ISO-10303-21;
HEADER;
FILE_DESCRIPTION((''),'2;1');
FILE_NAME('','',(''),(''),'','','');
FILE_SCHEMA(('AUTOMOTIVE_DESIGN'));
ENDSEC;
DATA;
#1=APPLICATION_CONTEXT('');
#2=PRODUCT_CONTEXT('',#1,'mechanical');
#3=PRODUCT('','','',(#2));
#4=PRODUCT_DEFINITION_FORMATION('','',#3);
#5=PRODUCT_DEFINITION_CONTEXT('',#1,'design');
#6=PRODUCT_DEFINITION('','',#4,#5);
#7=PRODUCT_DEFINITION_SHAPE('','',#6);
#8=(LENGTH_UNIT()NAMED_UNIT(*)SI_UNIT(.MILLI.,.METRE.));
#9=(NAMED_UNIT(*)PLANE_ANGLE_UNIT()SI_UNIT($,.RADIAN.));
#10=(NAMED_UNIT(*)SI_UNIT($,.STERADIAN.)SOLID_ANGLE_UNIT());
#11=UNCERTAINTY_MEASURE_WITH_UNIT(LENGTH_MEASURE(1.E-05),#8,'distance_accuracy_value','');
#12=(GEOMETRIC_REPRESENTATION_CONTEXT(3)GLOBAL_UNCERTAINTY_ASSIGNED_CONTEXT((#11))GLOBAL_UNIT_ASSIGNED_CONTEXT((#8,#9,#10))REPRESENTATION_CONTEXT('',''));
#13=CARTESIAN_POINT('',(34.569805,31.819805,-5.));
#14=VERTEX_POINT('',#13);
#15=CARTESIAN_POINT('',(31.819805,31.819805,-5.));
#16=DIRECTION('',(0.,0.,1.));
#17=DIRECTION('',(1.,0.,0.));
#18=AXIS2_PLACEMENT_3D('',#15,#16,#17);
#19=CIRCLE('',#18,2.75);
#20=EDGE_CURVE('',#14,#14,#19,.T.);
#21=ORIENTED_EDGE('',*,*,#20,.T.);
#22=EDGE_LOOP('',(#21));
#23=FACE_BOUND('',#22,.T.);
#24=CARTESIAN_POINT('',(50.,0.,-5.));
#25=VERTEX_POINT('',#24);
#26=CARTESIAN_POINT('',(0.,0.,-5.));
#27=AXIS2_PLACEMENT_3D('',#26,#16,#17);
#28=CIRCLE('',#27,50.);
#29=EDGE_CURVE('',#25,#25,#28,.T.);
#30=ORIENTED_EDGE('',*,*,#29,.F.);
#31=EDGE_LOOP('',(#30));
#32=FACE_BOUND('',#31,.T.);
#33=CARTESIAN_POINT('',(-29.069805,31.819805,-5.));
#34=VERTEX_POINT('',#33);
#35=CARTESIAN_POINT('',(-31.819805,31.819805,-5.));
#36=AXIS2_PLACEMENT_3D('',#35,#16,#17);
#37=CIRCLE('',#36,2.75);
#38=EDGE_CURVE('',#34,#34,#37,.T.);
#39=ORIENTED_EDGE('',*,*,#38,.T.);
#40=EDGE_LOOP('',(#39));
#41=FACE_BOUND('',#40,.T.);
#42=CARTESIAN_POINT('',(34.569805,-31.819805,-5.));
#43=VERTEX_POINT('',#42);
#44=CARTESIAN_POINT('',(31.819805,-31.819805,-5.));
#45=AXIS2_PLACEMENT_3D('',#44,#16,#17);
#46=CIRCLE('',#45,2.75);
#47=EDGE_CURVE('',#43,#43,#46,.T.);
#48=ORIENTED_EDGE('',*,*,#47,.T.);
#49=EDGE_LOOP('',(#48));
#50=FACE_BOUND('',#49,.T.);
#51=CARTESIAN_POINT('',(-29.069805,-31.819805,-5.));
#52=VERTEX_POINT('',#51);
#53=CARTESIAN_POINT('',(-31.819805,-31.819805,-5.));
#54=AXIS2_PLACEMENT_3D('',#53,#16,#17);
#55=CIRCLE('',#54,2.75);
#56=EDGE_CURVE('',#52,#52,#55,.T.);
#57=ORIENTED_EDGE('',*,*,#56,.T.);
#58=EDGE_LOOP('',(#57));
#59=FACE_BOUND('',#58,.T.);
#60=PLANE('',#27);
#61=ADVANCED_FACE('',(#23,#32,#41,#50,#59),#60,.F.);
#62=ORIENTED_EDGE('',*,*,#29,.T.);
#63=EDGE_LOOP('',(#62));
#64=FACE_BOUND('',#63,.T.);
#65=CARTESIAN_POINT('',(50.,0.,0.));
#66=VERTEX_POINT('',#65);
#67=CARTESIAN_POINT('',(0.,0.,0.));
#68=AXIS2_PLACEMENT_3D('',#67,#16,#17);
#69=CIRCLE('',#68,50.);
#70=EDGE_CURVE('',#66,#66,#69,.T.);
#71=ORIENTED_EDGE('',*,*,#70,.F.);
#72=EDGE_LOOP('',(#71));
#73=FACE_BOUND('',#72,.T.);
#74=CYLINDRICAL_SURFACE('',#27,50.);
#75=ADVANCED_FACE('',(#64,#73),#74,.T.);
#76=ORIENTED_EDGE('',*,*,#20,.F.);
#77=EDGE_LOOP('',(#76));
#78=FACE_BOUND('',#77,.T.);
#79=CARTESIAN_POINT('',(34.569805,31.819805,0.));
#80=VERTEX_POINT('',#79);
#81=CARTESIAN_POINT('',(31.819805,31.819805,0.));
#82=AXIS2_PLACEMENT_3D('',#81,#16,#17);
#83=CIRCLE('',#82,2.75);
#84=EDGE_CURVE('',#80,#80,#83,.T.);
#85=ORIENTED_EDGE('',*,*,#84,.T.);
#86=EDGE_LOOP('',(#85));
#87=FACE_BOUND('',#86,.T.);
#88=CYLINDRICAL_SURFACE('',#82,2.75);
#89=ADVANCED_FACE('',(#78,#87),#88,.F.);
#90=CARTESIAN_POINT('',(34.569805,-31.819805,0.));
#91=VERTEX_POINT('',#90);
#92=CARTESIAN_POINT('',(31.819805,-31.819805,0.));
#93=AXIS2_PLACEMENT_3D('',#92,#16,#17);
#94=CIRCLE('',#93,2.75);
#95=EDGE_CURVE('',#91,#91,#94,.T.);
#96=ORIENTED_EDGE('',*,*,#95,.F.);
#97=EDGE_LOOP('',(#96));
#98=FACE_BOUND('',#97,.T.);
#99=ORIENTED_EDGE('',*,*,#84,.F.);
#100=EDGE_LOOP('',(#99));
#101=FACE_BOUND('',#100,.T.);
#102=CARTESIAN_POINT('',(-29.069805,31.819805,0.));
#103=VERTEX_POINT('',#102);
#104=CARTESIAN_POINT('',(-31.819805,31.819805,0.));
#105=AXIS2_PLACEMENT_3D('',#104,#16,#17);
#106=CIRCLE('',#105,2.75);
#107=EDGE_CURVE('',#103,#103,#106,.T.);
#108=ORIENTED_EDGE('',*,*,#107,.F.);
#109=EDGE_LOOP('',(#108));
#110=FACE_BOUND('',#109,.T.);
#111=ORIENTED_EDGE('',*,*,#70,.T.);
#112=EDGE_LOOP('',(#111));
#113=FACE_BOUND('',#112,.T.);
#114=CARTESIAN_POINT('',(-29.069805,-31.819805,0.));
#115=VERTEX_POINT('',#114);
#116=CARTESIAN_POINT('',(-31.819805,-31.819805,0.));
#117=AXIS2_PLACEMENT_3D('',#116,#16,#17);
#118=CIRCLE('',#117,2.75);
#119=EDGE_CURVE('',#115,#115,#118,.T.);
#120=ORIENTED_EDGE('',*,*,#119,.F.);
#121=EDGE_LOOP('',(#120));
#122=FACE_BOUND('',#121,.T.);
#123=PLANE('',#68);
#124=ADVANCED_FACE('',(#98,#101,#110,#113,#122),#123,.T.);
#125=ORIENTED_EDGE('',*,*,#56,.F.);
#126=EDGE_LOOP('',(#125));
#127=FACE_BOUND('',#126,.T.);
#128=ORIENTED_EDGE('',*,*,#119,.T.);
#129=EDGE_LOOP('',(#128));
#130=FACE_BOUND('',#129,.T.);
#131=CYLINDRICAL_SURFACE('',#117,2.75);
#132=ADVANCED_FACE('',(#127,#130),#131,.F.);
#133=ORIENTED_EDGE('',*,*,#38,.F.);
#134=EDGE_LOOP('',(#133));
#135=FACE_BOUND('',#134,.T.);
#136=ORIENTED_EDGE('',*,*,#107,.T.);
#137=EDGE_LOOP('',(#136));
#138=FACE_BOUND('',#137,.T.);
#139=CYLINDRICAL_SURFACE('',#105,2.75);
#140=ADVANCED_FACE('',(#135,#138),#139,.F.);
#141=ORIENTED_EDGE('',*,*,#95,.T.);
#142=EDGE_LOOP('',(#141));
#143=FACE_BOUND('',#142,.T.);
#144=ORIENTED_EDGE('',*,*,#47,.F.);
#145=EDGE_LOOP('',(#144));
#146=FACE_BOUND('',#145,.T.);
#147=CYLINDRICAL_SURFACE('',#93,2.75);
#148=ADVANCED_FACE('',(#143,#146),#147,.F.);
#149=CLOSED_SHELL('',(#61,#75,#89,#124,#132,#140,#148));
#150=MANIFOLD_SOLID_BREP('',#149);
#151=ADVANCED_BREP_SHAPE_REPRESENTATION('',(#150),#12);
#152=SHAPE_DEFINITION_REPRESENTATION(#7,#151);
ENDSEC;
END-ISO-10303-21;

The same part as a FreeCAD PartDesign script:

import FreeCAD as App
import Part
import Sketcher

V = App.Vector

doc = App.newDocument("Part")
params = doc.addObject("Spreadsheet::Sheet", "Params")
for row, (alias, value) in enumerate([
    ("sketch1_diameter", "100 mm"),
    ("pad1_length", "5 mm"),
    ("sketch2_diameter", "5.5 mm"),
    ("hole_diameter", "5.5 mm"),
], start=1):
    params.set(f"A{row}", alias)
    params.set(f"B{row}", "=" + value)
    params.setAlias(f"B{row}", alias)

body = doc.addObject("PartDesign::Body", "Body")

sketch1 = body.newObject("Sketcher::SketchObject", "Sketch")
sketch1.AttachmentSupport = (doc.getObject("XY_Plane"), [""])
sketch1.MapMode = "FlatFace"
sketch1.addGeometry(Part.Circle(V(0, 0, 0), V(0, 0, 1), 50), False)
sketch1.addConstraint([
    Sketcher.Constraint("Coincident", 0, 3, -1, 1),
    Sketcher.Constraint("Diameter", 0, 100.0),
])
sketch1.setExpression("Constraints[1]", "Params.sketch1_diameter")
pad1 = body.newObject("PartDesign::Pad", "Pad")
pad1.Profile = sketch1
pad1.setExpression("Length", "Params.pad1_length")
pad1.Reversed = True

sketch2 = body.newObject("Sketcher::SketchObject", "Sketch001")
sketch2.AttachmentSupport = (doc.getObject("XY_Plane"), [""])
sketch2.MapMode = "FlatFace"
sketch2.addGeometry([
    Part.Circle(V(-31.819805, 31.819805, 0), V(0, 0, 1), 2.75),
    Part.Circle(V(31.819805, 31.819805, 0), V(0, 0, 1), 2.75),
    Part.Circle(V(31.819805, -31.819805, 0), V(0, 0, 1), 2.75),
    Part.Circle(V(-31.819805, -31.819805, 0), V(0, 0, 1), 2.75),
], False)
sketch2.addConstraint([
    Sketcher.Constraint("Equal", 0, 1),
    Sketcher.Constraint("Equal", 1, 2),
    Sketcher.Constraint("Equal", 2, 3),
    Sketcher.Constraint("Symmetric", 0, 3, 2, 3, -1, 1),
    Sketcher.Constraint("Symmetric", 1, 3, 3, 3, -1, 1),
    Sketcher.Constraint("Symmetric", 0, 3, 1, 3, -2),
    Sketcher.Constraint("Diameter", 0, 5.5),
    Sketcher.Constraint("DistanceX", 0, 3, 1, 3, 63.63961),
    Sketcher.Constraint("DistanceY", 2, 3, 1, 3, 63.63961),
])
sketch2.setExpression("Constraints[6]", "Params.sketch2_diameter")
doc.recompute()
hole = body.newObject("PartDesign::Hole", "Hole")
hole.Profile = sketch2
hole.ThreadType = "None"
hole.setExpression("Diameter", "Params.hole_diameter")
hole.DepthType = "ThroughAll"

doc.recompute()
